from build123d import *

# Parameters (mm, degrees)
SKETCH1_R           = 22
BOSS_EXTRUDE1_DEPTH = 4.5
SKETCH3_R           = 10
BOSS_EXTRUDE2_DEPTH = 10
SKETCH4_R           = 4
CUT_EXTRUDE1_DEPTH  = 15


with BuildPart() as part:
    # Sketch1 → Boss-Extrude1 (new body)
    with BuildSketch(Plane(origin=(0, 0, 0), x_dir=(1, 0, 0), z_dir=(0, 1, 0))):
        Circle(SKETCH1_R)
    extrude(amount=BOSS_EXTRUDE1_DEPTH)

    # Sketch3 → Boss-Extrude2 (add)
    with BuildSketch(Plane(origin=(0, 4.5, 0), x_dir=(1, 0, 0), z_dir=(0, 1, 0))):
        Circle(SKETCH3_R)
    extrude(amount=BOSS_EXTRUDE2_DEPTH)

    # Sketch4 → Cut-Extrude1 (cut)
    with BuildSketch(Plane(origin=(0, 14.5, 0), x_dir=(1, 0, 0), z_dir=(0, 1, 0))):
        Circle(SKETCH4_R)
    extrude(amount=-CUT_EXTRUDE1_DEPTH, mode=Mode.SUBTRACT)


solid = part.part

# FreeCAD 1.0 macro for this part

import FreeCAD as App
import Part
import Sketcher

V = App.Vector
Q = App.Units.Quantity

doc = App.newDocument("Part")
body = doc.addObject("PartDesign::Body", "Body")

# Sketch on XZ plane
sketch1 = body.newObject("Sketcher::SketchObject", "Sketch")
sketch1.AttachmentSupport = (doc.getObject("XZ_Plane"), [""])
sketch1.MapMode = "FlatFace"
sketch1.addGeometry(Part.Circle(V(0, 0, 0), V(0, 0, 1), 22), False)
sketch1.addConstraint(Sketcher.Constraint("Coincident", 0, 3, -1, 1))
sketch1.addConstraint(Sketcher.Constraint("Diameter", 0, Q("44 mm")))
pad1 = body.newObject("PartDesign::Pad", "Pad")
pad1.Profile = sketch1
pad1.Length = 4.5
pad1.Reversed = True

# Sketch on XZ plane
sketch2 = body.newObject("Sketcher::SketchObject", "Sketch001")
sketch2.AttachmentSupport = (doc.getObject("XZ_Plane"), [""])
sketch2.MapMode = "FlatFace"
sketch2.AttachmentOffset = App.Placement(V(0, 0, -4.5), App.Rotation())
sketch2.addGeometry(Part.Circle(V(0, 0, 0), V(0, 0, 1), 10), False)
sketch2.addConstraint(Sketcher.Constraint("Coincident", 0, 3, -1, 1))
sketch2.addConstraint(Sketcher.Constraint("Diameter", 0, Q("20 mm")))
pad2 = body.newObject("PartDesign::Pad", "Pad001")
pad2.Profile = sketch2
pad2.Length = 10
pad2.Reversed = True

# Sketch on XZ plane
sketch3 = body.newObject("Sketcher::SketchObject", "Sketch002")
sketch3.AttachmentSupport = (doc.getObject("XZ_Plane"), [""])
sketch3.MapMode = "FlatFace"
sketch3.AttachmentOffset = App.Placement(V(0, 0, -14.5), App.Rotation())
sketch3.addGeometry(Part.Circle(V(0, 0, 0), V(0, 0, 1), 4), False)
sketch3.addConstraint(Sketcher.Constraint("Coincident", 0, 3, -1, 1))
sketch3.addConstraint(Sketcher.Constraint("Diameter", 0, Q("8 mm")))
pocket1 = body.newObject("PartDesign::Pocket", "Pocket")
pocket1.Profile = sketch3
pocket1.Length = 15
pocket1.Reversed = True

doc.recompute()
